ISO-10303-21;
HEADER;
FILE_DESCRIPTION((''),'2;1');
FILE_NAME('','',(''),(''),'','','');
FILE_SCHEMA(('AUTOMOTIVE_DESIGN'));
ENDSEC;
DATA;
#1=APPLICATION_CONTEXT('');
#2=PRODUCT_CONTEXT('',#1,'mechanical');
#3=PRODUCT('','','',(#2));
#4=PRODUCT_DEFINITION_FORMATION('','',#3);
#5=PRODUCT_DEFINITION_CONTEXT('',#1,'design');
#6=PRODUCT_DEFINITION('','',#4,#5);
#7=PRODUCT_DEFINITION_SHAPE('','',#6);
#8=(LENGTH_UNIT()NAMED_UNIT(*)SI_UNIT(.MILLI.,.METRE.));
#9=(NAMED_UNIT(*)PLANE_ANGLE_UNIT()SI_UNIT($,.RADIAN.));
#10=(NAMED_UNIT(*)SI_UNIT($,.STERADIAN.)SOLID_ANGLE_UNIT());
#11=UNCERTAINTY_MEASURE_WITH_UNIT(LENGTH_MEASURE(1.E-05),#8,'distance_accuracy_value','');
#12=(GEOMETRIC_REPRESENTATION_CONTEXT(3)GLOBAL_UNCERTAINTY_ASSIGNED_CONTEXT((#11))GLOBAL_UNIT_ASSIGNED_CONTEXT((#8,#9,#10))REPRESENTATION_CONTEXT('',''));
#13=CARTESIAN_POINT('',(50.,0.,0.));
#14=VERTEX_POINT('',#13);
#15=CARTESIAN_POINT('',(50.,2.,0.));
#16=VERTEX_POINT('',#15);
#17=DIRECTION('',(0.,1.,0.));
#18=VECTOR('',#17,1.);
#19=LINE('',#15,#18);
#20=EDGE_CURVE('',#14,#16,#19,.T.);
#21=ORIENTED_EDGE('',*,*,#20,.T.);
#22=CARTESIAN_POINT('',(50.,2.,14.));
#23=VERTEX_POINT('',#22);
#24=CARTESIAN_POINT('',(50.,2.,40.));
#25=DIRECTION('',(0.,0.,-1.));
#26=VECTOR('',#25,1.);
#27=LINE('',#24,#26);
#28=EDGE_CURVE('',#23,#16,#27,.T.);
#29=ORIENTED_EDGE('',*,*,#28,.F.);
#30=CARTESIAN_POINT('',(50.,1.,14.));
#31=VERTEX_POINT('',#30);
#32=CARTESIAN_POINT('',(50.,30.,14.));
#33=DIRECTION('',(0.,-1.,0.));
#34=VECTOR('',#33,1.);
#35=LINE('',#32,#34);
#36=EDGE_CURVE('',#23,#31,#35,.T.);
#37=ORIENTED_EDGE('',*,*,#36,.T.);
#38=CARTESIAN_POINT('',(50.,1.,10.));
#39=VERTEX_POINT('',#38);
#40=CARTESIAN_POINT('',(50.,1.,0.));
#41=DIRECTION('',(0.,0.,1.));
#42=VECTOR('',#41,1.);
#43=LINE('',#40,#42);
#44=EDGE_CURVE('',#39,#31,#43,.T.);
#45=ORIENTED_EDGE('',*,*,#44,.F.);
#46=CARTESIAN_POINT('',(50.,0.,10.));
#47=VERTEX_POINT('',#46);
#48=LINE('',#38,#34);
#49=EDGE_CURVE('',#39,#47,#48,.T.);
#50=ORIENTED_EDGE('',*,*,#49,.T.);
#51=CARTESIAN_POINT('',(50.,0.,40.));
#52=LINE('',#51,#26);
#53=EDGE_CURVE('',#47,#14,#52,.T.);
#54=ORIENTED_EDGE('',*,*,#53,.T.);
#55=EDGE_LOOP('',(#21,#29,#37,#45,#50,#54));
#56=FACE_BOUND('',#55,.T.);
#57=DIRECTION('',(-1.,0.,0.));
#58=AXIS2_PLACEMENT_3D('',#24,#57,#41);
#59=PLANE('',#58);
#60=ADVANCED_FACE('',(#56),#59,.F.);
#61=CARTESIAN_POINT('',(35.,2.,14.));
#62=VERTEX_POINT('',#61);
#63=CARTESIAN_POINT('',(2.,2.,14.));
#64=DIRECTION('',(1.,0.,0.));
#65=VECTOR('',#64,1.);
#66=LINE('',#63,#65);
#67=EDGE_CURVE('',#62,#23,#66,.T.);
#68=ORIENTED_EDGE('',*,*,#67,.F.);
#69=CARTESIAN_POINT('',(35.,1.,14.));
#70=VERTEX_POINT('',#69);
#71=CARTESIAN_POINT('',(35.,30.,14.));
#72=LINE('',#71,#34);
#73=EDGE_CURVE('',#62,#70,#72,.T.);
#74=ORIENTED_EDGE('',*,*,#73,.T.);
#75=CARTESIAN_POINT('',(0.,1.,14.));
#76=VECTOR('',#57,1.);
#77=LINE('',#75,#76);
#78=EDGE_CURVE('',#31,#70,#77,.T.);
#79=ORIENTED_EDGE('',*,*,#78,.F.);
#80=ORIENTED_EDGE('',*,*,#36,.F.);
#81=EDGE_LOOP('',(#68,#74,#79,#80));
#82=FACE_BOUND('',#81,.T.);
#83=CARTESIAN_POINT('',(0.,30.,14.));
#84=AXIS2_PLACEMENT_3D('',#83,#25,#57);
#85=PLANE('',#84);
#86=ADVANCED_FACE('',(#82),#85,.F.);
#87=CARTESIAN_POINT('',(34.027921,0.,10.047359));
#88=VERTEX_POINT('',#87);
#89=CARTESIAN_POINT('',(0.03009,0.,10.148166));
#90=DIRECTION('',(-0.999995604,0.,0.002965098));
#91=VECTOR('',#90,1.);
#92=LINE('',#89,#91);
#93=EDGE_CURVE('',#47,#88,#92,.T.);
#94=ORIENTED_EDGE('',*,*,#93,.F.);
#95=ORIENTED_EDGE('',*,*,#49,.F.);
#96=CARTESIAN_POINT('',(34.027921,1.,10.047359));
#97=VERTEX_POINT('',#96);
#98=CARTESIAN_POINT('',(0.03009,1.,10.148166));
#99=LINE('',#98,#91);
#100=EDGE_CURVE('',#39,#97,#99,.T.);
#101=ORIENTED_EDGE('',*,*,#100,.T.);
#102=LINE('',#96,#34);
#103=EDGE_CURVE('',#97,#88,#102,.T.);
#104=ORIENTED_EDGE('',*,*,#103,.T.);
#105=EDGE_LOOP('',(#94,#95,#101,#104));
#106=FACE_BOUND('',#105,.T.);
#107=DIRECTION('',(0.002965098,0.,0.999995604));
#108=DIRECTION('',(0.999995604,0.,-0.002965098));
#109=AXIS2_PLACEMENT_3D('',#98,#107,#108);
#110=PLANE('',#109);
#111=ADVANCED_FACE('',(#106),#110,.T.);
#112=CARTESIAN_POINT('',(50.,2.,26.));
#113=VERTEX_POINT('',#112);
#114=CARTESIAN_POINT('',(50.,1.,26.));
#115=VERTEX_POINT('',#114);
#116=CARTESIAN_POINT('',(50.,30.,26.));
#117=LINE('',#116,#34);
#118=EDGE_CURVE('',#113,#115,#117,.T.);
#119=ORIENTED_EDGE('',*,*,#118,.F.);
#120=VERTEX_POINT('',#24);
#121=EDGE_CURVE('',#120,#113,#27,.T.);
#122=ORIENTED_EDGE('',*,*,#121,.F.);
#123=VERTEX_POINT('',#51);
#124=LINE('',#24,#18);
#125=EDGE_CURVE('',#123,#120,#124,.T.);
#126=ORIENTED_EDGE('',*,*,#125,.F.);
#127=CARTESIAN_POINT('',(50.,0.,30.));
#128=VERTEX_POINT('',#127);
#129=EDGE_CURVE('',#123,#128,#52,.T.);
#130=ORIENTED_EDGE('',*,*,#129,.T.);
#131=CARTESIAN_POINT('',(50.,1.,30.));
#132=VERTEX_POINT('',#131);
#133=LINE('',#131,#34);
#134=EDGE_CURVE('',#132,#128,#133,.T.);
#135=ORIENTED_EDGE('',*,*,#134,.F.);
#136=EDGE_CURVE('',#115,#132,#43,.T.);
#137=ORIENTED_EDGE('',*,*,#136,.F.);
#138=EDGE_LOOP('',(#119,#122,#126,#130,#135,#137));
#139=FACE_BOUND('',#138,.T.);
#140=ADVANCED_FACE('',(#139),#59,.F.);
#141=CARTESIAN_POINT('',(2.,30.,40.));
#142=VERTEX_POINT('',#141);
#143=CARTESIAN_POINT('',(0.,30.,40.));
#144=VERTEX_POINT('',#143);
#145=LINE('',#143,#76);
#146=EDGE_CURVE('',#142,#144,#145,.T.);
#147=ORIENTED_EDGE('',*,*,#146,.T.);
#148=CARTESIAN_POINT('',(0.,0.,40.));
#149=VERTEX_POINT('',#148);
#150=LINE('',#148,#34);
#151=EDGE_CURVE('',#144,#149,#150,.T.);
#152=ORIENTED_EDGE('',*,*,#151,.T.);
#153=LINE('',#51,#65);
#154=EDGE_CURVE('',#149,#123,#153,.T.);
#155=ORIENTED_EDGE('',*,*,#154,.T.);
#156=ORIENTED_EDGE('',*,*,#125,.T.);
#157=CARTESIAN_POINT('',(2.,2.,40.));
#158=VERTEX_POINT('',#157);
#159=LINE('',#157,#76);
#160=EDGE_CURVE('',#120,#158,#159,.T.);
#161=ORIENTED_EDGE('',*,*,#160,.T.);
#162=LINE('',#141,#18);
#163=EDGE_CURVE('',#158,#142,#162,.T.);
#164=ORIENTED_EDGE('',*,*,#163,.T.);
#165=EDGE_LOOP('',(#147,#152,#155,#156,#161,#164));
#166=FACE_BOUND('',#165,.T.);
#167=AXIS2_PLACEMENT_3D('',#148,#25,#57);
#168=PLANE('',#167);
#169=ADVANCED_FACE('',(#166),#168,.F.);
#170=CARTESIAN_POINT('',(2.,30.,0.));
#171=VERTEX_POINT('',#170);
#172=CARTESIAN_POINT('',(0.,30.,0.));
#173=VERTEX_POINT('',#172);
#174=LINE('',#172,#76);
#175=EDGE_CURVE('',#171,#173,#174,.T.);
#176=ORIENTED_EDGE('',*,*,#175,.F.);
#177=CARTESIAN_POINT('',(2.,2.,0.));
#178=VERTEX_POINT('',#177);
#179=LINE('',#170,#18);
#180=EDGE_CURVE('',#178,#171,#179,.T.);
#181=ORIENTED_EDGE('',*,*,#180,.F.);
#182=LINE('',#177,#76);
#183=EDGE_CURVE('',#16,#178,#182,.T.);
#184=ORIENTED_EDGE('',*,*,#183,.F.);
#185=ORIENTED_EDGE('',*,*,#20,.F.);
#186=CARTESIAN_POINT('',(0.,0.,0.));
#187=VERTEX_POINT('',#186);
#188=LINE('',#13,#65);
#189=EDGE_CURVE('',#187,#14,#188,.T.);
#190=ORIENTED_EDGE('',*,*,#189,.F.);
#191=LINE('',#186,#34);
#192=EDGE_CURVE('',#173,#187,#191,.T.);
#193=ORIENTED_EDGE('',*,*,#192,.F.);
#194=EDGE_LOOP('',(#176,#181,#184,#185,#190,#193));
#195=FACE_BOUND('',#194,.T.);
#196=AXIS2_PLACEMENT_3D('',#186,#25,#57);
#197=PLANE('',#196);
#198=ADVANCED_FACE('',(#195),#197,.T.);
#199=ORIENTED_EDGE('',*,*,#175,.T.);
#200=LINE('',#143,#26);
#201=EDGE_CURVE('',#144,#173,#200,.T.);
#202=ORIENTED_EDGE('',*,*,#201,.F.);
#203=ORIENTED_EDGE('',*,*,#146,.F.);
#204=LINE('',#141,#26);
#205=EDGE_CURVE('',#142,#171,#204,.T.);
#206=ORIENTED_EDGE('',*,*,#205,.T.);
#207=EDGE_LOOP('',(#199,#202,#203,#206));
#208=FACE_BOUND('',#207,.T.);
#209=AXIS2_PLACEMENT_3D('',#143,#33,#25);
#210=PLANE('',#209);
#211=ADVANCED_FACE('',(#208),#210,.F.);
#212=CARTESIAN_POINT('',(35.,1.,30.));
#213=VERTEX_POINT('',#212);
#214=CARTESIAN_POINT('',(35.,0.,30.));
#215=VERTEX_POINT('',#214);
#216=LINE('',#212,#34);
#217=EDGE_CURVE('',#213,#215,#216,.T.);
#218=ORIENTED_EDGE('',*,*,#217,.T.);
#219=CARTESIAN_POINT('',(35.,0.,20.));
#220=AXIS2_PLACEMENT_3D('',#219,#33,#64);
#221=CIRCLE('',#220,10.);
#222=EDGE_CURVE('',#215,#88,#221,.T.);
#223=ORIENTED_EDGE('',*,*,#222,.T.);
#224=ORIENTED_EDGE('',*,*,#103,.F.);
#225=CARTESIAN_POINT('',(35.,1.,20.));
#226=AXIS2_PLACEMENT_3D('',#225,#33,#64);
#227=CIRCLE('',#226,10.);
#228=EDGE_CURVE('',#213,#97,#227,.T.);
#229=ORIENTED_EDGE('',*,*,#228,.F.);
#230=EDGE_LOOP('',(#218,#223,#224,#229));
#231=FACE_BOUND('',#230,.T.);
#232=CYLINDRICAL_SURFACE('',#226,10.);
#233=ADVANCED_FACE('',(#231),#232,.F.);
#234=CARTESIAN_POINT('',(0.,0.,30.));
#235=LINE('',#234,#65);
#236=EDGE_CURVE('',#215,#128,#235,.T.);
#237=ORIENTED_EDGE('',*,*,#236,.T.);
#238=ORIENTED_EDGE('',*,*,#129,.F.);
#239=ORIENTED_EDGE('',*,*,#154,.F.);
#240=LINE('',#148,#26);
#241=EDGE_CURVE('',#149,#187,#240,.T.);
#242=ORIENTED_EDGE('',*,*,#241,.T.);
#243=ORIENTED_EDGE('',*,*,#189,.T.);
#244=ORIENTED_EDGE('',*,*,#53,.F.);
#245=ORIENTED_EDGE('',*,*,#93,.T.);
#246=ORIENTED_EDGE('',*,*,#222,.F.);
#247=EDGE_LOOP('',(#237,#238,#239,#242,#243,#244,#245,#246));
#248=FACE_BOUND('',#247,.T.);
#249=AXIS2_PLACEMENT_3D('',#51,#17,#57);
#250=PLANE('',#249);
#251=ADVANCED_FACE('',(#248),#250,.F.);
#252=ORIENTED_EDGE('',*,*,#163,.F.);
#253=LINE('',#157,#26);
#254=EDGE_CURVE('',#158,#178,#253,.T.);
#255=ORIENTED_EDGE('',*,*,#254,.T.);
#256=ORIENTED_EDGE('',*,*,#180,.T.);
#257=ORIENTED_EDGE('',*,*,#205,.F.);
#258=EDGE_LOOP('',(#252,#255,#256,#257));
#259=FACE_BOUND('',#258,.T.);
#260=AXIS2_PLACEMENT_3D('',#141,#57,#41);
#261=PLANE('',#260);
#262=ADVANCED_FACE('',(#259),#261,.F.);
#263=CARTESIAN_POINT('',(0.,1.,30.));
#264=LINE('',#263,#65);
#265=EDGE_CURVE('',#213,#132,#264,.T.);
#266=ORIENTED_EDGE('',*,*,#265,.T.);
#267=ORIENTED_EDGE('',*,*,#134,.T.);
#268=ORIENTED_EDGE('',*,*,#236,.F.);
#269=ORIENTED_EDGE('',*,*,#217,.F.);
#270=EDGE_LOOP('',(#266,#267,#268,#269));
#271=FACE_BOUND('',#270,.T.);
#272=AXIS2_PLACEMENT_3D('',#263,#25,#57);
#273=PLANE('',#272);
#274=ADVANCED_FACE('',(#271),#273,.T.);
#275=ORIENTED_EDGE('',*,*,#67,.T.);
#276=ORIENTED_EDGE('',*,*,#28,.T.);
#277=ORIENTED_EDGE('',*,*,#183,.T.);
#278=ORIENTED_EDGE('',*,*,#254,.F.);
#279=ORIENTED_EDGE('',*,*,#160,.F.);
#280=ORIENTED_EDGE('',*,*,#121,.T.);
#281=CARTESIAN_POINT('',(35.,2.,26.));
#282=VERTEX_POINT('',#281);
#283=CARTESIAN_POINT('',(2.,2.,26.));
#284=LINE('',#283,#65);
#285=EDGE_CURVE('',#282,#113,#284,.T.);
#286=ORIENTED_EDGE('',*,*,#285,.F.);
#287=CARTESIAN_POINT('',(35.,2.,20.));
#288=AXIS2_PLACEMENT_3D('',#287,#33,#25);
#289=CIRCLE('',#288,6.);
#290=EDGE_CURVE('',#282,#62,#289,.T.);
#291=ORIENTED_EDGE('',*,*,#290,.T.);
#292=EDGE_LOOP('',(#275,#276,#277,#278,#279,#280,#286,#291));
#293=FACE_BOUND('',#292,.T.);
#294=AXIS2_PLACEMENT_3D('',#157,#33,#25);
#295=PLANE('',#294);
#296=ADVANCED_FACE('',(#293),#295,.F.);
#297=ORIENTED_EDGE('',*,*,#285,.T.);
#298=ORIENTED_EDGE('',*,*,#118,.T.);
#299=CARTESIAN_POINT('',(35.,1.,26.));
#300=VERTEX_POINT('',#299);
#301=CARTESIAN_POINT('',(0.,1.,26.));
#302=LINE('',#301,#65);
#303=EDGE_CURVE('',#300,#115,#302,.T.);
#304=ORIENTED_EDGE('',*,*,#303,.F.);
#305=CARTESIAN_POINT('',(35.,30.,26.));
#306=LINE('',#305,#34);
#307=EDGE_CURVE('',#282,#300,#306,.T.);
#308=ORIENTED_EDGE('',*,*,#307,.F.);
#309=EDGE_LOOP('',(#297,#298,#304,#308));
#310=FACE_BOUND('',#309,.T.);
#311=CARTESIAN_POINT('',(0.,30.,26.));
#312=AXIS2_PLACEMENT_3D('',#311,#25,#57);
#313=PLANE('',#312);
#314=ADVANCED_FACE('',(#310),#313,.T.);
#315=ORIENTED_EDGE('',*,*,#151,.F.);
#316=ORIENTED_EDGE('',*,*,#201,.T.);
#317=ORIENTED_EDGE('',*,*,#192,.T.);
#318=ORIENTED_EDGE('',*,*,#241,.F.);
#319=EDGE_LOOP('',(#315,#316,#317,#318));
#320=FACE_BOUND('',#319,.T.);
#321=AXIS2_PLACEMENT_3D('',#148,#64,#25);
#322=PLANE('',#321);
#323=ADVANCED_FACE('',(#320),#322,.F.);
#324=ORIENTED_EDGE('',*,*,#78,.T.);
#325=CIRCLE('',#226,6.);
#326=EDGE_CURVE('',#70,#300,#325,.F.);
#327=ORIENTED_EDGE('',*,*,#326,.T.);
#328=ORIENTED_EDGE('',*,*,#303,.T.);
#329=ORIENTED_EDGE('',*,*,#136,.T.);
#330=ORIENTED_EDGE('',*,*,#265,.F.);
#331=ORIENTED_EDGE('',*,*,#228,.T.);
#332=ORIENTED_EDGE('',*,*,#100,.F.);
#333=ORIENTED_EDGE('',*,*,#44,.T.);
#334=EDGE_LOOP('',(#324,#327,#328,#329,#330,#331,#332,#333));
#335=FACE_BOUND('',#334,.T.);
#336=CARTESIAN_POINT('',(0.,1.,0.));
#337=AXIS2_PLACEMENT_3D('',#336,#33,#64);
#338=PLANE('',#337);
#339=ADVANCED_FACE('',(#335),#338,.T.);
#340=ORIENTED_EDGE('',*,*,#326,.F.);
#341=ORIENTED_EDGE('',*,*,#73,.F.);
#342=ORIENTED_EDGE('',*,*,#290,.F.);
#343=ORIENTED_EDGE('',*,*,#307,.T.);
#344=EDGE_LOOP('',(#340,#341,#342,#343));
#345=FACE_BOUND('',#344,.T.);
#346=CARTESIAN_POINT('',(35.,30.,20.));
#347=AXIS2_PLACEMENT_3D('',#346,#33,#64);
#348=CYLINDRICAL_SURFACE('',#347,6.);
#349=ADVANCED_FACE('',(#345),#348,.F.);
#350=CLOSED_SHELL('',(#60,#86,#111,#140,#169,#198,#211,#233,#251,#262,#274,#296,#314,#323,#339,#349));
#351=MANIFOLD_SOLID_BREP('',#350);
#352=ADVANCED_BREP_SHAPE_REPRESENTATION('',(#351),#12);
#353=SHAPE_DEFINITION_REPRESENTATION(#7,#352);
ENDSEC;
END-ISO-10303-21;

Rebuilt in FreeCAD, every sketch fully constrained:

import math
import FreeCAD as App
import Part
import Sketcher
from FreeCAD import Vector
Q = App.Units.Quantity


def add_polygon(sketch, points):
    """Adds a closed chain of lines whose ends are joined by coincident constraints."""
    first, n = sketch.GeometryCount, len(points)
    for a, b in zip(points, points[1:] + points[:1]):
        sketch.addGeometry(Part.LineSegment(App.Vector(*a, 0), App.Vector(*b, 0)), False)
    for i in range(n):
        sketch.addConstraint(Sketcher.Constraint("Coincident", first + i, 2, first + (i + 1) % n, 1))

doc = App.newDocument("Part")
body = doc.addObject("PartDesign::Body", "Body")

sketch1 = body.newObject("Sketcher::SketchObject", "Sketch")
sketch1.AttachmentSupport = (doc.getObject("XY_Plane"), [""])
sketch1.MapMode = "FlatFace"
add_polygon(sketch1, [(0, 30), (0, 0), (50, 0), (50, 2), (2, 2), (2, 30)])
sketch1.addConstraint(Sketcher.Constraint("Vertical", 0))
sketch1.addConstraint(Sketcher.Constraint("Horizontal", 1))
sketch1.addConstraint(Sketcher.Constraint("Vertical", 2))
sketch1.addConstraint(Sketcher.Constraint("Horizontal", 3))
sketch1.addConstraint(Sketcher.Constraint("Vertical", 4))
sketch1.addConstraint(Sketcher.Constraint("Horizontal", 5))
sketch1.addConstraint(Sketcher.Constraint("Coincident", 0, 2, -1, 1))
sketch1.addConstraint(Sketcher.Constraint("Equal", 5, 2))
sketch1.addConstraint(Sketcher.Constraint("DistanceX", 1, 1, 1, 2, Q("50 mm")))
sketch1.addConstraint(Sketcher.Constraint("DistanceX", 3, 2, 3, 1, Q("48 mm")))
sketch1.addConstraint(Sketcher.Constraint("DistanceY", 0, 2, 0, 1, Q("30 mm")))
pad1 = body.newObject("PartDesign::Pad", "Pad")
pad1.Profile = sketch1
pad1.Length = 40

sketch2 = body.newObject("Sketcher::SketchObject", "Sketch001")
sketch2.AttachmentSupport = (doc.getObject("XZ_Plane"), [""])
sketch2.MapMode = "FlatFace"
sketch2.addGeometry(Part.LineSegment(Vector(50, 26, 0), Vector(35, 26, 0)), False)
sketch2.addGeometry(Part.ArcOfCircle(Part.Circle(Vector(35, 20, 0), Vector(0, 0, 1), 6), math.radians(90), math.radians(270)), False)
sketch2.addGeometry(Part.LineSegment(Vector(35, 14, 0), Vector(50, 14, 0)), False)
sketch2.addGeometry(Part.LineSegment(Vector(50, 14, 0), Vector(50, 26, 0)), False)
sketch2.addConstraint(Sketcher.Constraint("Tangent", 0, 2, 1, 1))
sketch2.addConstraint(Sketcher.Constraint("Tangent", 1, 2, 2, 1))
sketch2.addConstraint(Sketcher.Constraint("Coincident", 2, 2, 3, 1))
sketch2.addConstraint(Sketcher.Constraint("Coincident", 3, 2, 0, 1))
sketch2.addConstraint(Sketcher.Constraint("Horizontal", 0))
sketch2.addConstraint(Sketcher.Constraint("Horizontal", 2))
sketch2.addConstraint(Sketcher.Constraint("Vertical", 3))
sketch2.addConstraint(Sketcher.Constraint("Radius", 1, Q("6 mm")))
sketch2.addConstraint(Sketcher.Constraint("DistanceX", 0, 2, 0, 1, Q("15 mm")))
sketch2.addConstraint(Sketcher.Constraint("DistanceX", -1, 1, 1, 3, Q("35 mm")))
sketch2.addConstraint(Sketcher.Constraint("DistanceY", -1, 1, 1, 3, Q("20 mm")))
pocket1 = body.newObject("PartDesign::Pocket", "Pocket")
pocket1.Profile = sketch2
pocket1.Type = "ThroughAll"

sketch3 = body.newObject("Sketcher::SketchObject", "Sketch002")
sketch3.AttachmentSupport = (doc.getObject("XZ_Plane"), [""])
sketch3.MapMode = "FlatFace"
sketch3.addGeometry(Part.LineSegment(Vector(50, 30, 0), Vector(35, 30, 0)), False)
sketch3.addGeometry(Part.ArcOfCircle(Part.Circle(Vector(35, 20, 0), Vector(0, 0, 1), 10), math.radians(90), math.radians(180)), False)
sketch3.addGeometry(Part.ArcOfCircle(Part.Circle(Vector(35, 20, 0), Vector(0, 0, 1), 10), math.radians(180), math.radians(264.42159)), False)
sketch3.addGeometry(Part.LineSegment(Vector(34.027921, 10.047359, 0), Vector(35.913041, 10.041769, 0)), False)
sketch3.addGeometry(Part.LineSegment(Vector(35.913041, 10.041769, 0), Vector(50, 10, 0)), False)
sketch3.addGeometry(Part.LineSegment(Vector(50, 10, 0), Vector(50, 14, 0)), False)
sketch3.addGeometry(Part.LineSegment(Vector(50, 14, 0), Vector(35, 14, 0)), False)
sketch3.addGeometry(Part.ArcOfCircle(Part.Circle(Vector(35, 20, 0), Vector(0, 0, 1), 6), math.radians(90), math.radians(270)), False)
sketch3.addGeometry(Part.LineSegment(Vector(35, 26, 0), Vector(50, 26, 0)), False)
sketch3.addGeometry(Part.LineSegment(Vector(50, 26, 0), Vector(50, 30, 0)), False)
sketch3.addConstraint(Sketcher.Constraint("Tangent", 0, 2, 1, 1))
sketch3.addConstraint(Sketcher.Constraint("Tangent", 1, 2, 2, 1))
sketch3.addConstraint(Sketcher.Constraint("Coincident", 2, 2, 3, 1))
sketch3.addConstraint(Sketcher.Constraint("Coincident", 3, 2, 4, 1))
sketch3.addConstraint(Sketcher.Constraint("Coincident", 4, 2, 5, 1))
sketch3.addConstraint(Sketcher.Constraint("Coincident", 5, 2, 6, 1))
sketch3.addConstraint(Sketcher.Constraint("Tangent", 6, 2, 7, 2))
sketch3.addConstraint(Sketcher.Constraint("Tangent", 7, 1, 8, 1))
sketch3.addConstraint(Sketcher.Constraint("Coincident", 8, 2, 9, 1))
sketch3.addConstraint(Sketcher.Constraint("Coincident", 9, 2, 0, 1))
sketch3.addConstraint(Sketcher.Constraint("Horizontal", 0))
sketch3.addConstraint(Sketcher.Constraint("Vertical", 5))
sketch3.addConstraint(Sketcher.Constraint("Horizontal", 6))
sketch3.addConstraint(Sketcher.Constraint("Horizontal", 8))
sketch3.addConstraint(Sketcher.Constraint("Vertical", 9))
sketch3.addConstraint(Sketcher.Constraint("Coincident", 7, 3, 1, 3))
sketch3.addConstraint(Sketcher.Constraint("Equal", 1, 2))
sketch3.addConstraint(Sketcher.Constraint("Parallel", 3, 4))
sketch3.addConstraint(Sketcher.Constraint("Horizontal", 7, 3, 1, 2))
sketch3.addConstraint(Sketcher.Constraint("Vertical", 5, 2, 8, 2))
sketch3.addConstraint(Sketcher.Constraint("Equal", 5, 9))
sketch3.addConstraint(Sketcher.Constraint("Radius", 1, Q("10 mm")))
sketch3.addConstraint(Sketcher.Constraint("Radius", 7, Q("6 mm")))
sketch3.addConstraint(Sketcher.Constraint("DistanceX", 0, 2, 0, 1, Q("15 mm")))
sketch3.addConstraint(Sketcher.Constraint("DistanceX", -1, 1, 1, 3, Q("35 mm")))
sketch3.addConstraint(Sketcher.Constraint("DistanceY", -1, 1, 1, 3, Q("20 mm")))
sketch3.addConstraint(Sketcher.Constraint("Distance", 4, Q("14.087021 mm")))
sketch3.addConstraint(Sketcher.Constraint("DistanceX", -1, 1, 2, 2, Q("34.027921 mm")))
pocket2 = body.newObject("PartDesign::Pocket", "Pocket001")
pocket2.Profile = sketch3
pocket2.Length = 1

doc.recompute()
